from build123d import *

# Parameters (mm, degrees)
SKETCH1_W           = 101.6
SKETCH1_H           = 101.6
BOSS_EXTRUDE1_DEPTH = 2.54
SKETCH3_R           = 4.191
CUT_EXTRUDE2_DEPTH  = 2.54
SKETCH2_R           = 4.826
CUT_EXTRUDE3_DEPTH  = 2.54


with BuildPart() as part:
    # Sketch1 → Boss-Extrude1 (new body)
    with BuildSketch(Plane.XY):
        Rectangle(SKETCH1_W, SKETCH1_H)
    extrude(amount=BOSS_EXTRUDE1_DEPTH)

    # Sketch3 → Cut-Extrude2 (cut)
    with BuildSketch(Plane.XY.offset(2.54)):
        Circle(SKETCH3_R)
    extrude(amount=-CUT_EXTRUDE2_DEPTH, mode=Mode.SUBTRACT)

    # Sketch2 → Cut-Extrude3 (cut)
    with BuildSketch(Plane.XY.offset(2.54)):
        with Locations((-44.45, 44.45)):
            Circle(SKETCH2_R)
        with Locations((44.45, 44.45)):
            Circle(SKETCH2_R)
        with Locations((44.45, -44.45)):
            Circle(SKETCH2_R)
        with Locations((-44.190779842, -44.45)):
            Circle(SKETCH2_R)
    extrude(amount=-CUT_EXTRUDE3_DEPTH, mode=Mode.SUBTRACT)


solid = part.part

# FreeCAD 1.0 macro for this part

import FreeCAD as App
import Part
import Sketcher
from FreeCAD import Vector
Q = App.Units.Quantity


def add_polygon(sketch, points):
    """Adds a closed chain of lines whose ends are joined by coincident constraints."""
    first, n = sketch.GeometryCount, len(points)
    for a, b in zip(points, points[1:] + points[:1]):
        sketch.addGeometry(Part.LineSegment(App.Vector(*a, 0), App.Vector(*b, 0)), False)
    for i in range(n):
        sketch.addConstraint(Sketcher.Constraint("Coincident", first + i, 2, first + (i + 1) % n, 1))

doc = App.newDocument("Part")
body = doc.addObject("PartDesign::Body", "Body")

# Sketch on XY plane
sketch1 = body.newObject("Sketcher::SketchObject", "Sketch")
sketch1.AttachmentSupport = (doc.getObject("XY_Plane"), [""])
sketch1.MapMode = "FlatFace"
add_polygon(sketch1, [(-51, 51), (-51, -51), (51, -51), (51, 51)])  # lines 0-3
sketch1.addConstraint([
    Sketcher.Constraint("Vertical", 0),
    Sketcher.Constraint("Horizontal", 1),
    Sketcher.Constraint("Vertical", 2),
    Sketcher.Constraint("Horizontal", 3),
    Sketcher.Constraint("Symmetric", 0, 2, 2, 2, -1, 1),
    Sketcher.Constraint("Equal", 3, 0),
    Sketcher.Constraint("DistanceX", 1, 1, 1, 2, Q("4 in")),
])
pad1 = body.newObject("PartDesign::Pad", "Pad")
pad1.Profile = sketch1
pad1.Length = Q("0.1 in")

# Sketch on XY plane
sketch2 = body.newObject("Sketcher::SketchObject", "Sketch001")
sketch2.AttachmentSupport = (doc.getObject("XY_Plane"), [""])
sketch2.MapMode = "FlatFace"
sketch2.AttachmentOffset = App.Placement(Vector(0, 0, 0.1 * 25.4), App.Rotation())
sketch2.addGeometry(Part.Circle(Vector(0, 0, 0), Vector(0, 0, 1), 4.2), False)
sketch2.addConstraint([
    Sketcher.Constraint("Coincident", 0, 3, -1, 1),
    Sketcher.Constraint("Diameter", 0, Q("0.33 in")),
])
pocket1 = body.newObject("PartDesign::Pocket", "Pocket")
pocket1.Profile = sketch2
pocket1.Length = Q("0.1 in")

# Sketch on XY plane
sketch3 = body.newObject("Sketcher::SketchObject", "Sketch002")
sketch3.AttachmentSupport = (doc.getObject("XY_Plane"), [""])
sketch3.MapMode = "FlatFace"
sketch3.AttachmentOffset = App.Placement(Vector(0, 0, 0.1 * 25.4), App.Rotation())
sketch3.addGeometry([
    Part.Circle(Vector(-44.5, 44.5, 0), Vector(0, 0, 1), 4.8),
    Part.Circle(Vector(44.5, 44.5, 0), Vector(0, 0, 1), 4.8),
    Part.Circle(Vector(44.5, -44.5, 0), Vector(0, 0, 1), 4.8),
    Part.Circle(Vector(-44.2, -44.5, 0), Vector(0, 0, 1), 4.8),
], False)
sketch3.addConstraint([
    Sketcher.Constraint("Equal", 0, 1),
    Sketcher.Constraint("Equal", 1, 2),
    Sketcher.Constraint("Equal", 2, 3),
    Sketcher.Constraint("Symmetric", 0, 3, 2, 3, -1, 1),
    Sketcher.Constraint("Symmetric", 0, 3, 1, 3, -2),
    Sketcher.Constraint("Horizontal", 2, 3, 3, 3),
    Sketcher.Constraint("Diameter", 0, Q("0.38 in")),
    Sketcher.Constraint("DistanceX", 0, 3, 1, 3, Q("3.5 in")),
    Sketcher.Constraint("DistanceY", 2, 3, 1, 3, Q("3.5 in")),
    Sketcher.Constraint("DistanceX", 3, 3, -1, 1, Q("44.19078 mm")),
])
pocket2 = body.newObject("PartDesign::Pocket", "Pocket001")
pocket2.Profile = sketch3
pocket2.Length = Q("0.1 in")

doc.recompute()
